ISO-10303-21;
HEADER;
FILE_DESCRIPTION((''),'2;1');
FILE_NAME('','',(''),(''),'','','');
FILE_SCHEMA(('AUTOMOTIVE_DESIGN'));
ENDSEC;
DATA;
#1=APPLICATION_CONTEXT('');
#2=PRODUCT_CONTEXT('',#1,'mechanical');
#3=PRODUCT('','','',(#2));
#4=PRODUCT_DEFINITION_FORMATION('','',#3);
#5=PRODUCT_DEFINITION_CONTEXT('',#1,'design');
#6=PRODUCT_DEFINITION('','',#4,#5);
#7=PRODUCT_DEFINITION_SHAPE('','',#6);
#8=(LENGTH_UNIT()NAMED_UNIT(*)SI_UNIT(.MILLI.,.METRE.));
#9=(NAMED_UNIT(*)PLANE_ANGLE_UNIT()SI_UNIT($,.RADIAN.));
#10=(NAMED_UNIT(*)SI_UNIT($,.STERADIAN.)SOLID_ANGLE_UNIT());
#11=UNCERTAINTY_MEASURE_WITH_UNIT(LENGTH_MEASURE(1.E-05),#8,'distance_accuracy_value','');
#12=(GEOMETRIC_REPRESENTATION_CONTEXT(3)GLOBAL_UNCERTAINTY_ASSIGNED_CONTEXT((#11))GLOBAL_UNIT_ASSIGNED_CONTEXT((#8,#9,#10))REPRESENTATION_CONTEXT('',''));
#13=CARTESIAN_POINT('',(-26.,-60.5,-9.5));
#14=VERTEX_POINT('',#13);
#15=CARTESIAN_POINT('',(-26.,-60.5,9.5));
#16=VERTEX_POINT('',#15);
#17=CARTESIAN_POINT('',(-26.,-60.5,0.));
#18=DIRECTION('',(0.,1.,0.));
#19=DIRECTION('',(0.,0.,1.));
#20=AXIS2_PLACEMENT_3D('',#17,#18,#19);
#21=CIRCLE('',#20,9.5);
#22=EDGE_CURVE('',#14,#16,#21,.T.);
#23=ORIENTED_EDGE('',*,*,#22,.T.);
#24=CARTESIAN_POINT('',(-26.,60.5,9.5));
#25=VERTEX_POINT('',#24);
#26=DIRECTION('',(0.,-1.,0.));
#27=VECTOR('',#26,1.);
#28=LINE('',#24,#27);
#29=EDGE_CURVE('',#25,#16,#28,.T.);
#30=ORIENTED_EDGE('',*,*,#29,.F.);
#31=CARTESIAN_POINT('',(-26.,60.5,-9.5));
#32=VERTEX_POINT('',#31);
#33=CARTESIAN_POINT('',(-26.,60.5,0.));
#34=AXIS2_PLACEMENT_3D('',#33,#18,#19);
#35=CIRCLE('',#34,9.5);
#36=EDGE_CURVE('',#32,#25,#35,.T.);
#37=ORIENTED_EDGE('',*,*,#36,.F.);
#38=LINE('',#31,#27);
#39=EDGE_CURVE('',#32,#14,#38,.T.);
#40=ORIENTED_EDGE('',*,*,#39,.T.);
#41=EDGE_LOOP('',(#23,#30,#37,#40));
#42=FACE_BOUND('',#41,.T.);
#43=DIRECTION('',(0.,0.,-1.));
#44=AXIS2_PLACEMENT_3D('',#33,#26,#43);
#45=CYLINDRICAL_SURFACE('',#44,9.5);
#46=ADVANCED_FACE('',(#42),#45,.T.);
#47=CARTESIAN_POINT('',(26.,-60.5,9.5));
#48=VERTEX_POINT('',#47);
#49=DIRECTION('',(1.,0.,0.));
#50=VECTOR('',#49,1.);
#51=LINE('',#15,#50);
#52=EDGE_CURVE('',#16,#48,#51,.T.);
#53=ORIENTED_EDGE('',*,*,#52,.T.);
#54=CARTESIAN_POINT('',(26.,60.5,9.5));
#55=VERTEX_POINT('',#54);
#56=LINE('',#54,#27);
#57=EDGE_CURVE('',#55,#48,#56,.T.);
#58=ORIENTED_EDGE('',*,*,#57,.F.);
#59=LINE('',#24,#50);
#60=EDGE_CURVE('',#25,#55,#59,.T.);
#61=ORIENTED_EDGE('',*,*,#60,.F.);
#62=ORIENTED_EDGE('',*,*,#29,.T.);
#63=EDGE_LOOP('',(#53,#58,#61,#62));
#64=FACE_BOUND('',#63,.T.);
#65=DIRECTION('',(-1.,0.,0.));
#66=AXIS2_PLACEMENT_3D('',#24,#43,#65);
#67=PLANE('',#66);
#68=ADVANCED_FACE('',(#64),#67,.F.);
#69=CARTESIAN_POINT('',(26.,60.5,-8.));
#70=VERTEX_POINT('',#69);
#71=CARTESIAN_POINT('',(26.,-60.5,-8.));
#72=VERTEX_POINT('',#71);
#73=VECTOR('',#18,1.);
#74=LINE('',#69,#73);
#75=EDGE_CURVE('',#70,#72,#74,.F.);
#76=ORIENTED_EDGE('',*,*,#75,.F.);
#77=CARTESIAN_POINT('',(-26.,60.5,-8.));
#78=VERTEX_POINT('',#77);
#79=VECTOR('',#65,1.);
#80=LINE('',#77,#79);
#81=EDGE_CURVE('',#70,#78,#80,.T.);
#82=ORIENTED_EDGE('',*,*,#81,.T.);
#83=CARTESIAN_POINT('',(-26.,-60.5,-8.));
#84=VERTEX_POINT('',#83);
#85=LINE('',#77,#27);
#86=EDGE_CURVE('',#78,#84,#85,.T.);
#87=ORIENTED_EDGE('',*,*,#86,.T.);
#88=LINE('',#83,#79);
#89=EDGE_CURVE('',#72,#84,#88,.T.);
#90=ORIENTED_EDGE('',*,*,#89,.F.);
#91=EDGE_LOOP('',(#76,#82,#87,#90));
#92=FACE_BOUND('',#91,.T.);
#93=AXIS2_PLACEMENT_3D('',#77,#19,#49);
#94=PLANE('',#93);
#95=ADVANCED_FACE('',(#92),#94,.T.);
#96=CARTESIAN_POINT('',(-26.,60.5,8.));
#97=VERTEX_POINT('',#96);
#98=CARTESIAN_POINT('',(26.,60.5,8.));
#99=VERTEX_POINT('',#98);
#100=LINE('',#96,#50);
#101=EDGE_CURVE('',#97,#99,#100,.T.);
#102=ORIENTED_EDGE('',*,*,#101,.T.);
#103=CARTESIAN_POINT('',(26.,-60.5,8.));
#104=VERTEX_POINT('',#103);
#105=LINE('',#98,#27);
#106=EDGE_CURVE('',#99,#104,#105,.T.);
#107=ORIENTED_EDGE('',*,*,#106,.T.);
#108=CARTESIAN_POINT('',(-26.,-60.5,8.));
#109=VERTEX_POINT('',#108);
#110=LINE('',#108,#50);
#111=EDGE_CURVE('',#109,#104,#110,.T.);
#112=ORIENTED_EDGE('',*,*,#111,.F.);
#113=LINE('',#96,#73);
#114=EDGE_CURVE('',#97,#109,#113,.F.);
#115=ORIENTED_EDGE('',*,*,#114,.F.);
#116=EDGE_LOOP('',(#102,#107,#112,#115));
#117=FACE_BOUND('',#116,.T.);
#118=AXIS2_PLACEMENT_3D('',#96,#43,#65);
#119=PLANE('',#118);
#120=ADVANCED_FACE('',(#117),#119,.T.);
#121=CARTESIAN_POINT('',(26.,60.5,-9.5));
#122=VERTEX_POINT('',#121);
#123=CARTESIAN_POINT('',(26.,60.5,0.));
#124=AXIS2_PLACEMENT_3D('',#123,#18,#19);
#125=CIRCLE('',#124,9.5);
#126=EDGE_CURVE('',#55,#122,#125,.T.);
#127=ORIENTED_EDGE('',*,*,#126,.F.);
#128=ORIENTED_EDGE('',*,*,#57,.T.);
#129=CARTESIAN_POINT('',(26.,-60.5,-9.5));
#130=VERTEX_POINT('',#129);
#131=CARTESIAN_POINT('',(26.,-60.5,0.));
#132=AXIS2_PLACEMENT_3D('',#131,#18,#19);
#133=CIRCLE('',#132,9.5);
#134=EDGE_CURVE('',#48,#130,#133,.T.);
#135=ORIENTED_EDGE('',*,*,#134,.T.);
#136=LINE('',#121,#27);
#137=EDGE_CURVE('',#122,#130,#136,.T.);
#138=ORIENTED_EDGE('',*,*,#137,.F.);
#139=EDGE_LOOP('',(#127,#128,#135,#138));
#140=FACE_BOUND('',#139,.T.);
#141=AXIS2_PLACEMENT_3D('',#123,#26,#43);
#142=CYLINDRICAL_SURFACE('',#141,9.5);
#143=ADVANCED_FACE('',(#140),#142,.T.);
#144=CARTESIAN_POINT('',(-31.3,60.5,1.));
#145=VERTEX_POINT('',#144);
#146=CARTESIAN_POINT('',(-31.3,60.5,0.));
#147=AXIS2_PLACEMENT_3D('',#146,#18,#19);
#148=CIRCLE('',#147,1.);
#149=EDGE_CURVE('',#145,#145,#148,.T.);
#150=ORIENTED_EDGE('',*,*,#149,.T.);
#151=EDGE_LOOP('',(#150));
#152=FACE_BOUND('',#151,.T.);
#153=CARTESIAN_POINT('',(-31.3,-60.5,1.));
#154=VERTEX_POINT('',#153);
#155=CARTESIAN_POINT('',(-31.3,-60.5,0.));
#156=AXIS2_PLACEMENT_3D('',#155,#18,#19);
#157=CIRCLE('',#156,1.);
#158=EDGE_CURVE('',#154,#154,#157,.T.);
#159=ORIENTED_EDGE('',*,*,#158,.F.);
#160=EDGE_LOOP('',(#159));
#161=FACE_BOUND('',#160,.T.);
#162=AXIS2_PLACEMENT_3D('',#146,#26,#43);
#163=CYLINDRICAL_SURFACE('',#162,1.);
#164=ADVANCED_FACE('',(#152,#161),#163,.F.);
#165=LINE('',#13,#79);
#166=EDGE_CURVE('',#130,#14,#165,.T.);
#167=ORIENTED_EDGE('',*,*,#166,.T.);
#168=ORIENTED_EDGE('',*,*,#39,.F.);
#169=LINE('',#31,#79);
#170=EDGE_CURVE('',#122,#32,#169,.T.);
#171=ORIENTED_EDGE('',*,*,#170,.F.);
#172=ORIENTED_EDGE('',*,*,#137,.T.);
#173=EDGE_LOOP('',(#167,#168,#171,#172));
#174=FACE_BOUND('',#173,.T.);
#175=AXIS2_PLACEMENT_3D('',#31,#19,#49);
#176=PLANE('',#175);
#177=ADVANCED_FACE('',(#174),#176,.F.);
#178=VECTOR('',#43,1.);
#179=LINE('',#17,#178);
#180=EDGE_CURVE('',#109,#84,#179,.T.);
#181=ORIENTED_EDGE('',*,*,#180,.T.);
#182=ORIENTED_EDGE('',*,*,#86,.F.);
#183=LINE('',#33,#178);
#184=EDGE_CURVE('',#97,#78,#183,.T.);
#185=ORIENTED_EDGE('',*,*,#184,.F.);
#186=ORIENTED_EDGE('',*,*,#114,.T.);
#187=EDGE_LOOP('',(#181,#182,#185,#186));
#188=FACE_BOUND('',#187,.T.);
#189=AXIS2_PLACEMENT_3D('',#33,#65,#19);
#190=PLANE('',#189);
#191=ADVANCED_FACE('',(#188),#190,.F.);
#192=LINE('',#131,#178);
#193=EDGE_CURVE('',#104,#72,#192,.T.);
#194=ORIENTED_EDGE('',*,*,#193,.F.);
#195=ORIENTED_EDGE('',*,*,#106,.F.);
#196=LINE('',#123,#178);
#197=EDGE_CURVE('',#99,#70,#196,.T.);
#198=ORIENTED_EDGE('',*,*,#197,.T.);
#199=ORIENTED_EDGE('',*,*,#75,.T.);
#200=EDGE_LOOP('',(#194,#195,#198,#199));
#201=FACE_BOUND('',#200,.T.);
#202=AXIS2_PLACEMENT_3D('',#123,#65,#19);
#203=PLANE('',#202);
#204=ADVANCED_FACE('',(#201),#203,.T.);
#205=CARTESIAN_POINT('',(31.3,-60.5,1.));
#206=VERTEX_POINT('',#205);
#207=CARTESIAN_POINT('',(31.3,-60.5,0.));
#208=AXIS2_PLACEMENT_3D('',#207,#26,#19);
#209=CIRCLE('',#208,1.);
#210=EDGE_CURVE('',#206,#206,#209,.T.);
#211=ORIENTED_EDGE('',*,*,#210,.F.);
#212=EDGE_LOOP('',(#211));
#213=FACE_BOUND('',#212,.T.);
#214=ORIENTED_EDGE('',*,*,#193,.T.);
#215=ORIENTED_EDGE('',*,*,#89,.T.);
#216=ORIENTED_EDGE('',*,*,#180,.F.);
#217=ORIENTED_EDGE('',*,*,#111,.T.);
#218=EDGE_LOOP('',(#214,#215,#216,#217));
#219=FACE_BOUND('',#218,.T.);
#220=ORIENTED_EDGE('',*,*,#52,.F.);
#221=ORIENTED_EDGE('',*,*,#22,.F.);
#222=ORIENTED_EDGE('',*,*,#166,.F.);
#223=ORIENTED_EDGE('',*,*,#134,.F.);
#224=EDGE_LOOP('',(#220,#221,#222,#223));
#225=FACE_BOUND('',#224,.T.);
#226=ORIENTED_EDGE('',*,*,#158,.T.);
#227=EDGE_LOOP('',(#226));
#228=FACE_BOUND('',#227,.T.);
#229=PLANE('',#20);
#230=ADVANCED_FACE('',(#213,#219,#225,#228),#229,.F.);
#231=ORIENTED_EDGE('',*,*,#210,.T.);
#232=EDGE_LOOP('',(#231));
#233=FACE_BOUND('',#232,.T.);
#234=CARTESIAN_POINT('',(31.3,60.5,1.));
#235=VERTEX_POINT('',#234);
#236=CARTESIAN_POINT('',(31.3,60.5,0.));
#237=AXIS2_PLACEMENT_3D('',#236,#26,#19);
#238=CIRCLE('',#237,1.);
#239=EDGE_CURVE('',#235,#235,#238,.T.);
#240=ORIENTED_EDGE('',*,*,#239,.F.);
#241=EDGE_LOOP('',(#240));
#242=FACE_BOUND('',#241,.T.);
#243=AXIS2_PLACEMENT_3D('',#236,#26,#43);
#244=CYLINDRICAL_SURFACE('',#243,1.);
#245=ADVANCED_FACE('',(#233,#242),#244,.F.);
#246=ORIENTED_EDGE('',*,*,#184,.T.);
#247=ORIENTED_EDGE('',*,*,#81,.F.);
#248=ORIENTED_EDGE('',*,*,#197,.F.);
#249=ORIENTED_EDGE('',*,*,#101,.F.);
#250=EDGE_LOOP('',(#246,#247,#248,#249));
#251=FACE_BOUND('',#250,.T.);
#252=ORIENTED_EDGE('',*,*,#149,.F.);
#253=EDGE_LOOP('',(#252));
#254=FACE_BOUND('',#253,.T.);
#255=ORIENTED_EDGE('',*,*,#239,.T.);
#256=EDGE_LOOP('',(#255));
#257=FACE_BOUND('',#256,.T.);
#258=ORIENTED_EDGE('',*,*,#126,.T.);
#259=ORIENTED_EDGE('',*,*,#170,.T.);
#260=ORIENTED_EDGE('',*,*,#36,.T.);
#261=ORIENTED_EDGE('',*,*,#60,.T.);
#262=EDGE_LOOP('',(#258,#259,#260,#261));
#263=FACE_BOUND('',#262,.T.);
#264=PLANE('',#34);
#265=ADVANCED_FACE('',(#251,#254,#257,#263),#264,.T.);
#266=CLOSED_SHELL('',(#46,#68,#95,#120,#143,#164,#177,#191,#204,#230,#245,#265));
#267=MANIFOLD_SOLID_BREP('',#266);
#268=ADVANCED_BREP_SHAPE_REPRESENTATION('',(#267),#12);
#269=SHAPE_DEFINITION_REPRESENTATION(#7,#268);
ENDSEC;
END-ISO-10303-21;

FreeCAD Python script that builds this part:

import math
import FreeCAD as App
import Part
import Sketcher
Q = App.Units.Quantity


def faces_at(feature, points):
    """Names of the faces that lie closest to the given points."""
    faces = feature.Shape.Faces
    near = lambda p: min(range(len(faces)), key=lambda i: faces[i].distToShape(Part.Vertex(*p))[0])
    return sorted({f"Face{near(p) + 1}" for p in points})

doc = App.newDocument("Part")
body = doc.addObject("PartDesign::Body", "Body")

sketch1 = body.newObject("Sketcher::SketchObject", "Sketch")
sketch1.AttachmentSupport = (doc.getObject("XZ_Plane"), [""])
sketch1.MapMode = "FlatFace"
sketch1.addGeometry(Part.LineSegment(App.Vector(26, -10, 0), App.Vector(-26, -10, 0)), False)
sketch1.addGeometry(Part.ArcOfCircle(Part.Circle(App.Vector(-26, 0, 0), App.Vector(0, 0, 1), 10), math.radians(90), math.radians(270)), False)
sketch1.addGeometry(Part.LineSegment(App.Vector(-26, 10, 0), App.Vector(26, 10, 0)), False)
sketch1.addGeometry(Part.ArcOfCircle(Part.Circle(App.Vector(26, 0, 0), App.Vector(0, 0, 1), 10), math.radians(-90), math.radians(90)), False)
sketch1.addConstraint(Sketcher.Constraint("Tangent", 0, 2, 1, 2))
sketch1.addConstraint(Sketcher.Constraint("Tangent", 1, 1, 2, 1))
sketch1.addConstraint(Sketcher.Constraint("Tangent", 2, 2, 3, 2))
sketch1.addConstraint(Sketcher.Constraint("Tangent", 3, 1, 0, 1))
sketch1.addConstraint(Sketcher.Constraint("Horizontal", 0))
sketch1.addConstraint(Sketcher.Constraint("Horizontal", 2))
sketch1.addConstraint(Sketcher.Constraint("Symmetric", 1, 3, 3, 3, -1, 1))
sketch1.addConstraint(Sketcher.Constraint("Radius", 1, Q("9.5 mm")))
sketch1.addConstraint(Sketcher.Constraint("DistanceX", 0, 2, 0, 1, Q("52 mm")))
pad1 = body.newObject("PartDesign::Pad", "Pad")
pad1.Profile = sketch1
pad1.Length = 121
pad1.Midplane = True
doc.recompute()

thickness = body.newObject("PartDesign::Thickness", "Thickness")
thickness.Base = (pad1, faces_at(pad1, [(0, 60.5, 0), (0, -60.5, 0)]))
thickness.Value = 1.5
thickness.Reversed = True
thickness.Join = "Intersection"

sketch2 = body.newObject("Sketcher::SketchObject", "Sketch001")
sketch2.AttachmentSupport = (doc.getObject("XZ_Plane"), [""])
sketch2.MapMode = "FlatFace"
sketch2.addGeometry(Part.ArcOfCircle(Part.Circle(App.Vector(-26, 0, 0), App.Vector(0, 0, 1), 8), math.radians(-180), math.radians(-90)), False)
sketch2.addGeometry(Part.ArcOfCircle(Part.Circle(App.Vector(-26, 0, 0), App.Vector(0, 0, 1), 8), math.radians(90), math.radians(180)), False)
sketch2.addGeometry(Part.LineSegment(App.Vector(-26, 8, 0), App.Vector(-26, -8, 0)), False)
sketch2.addGeometry(Part.Circle(App.Vector(-31.3, 0, 0), App.Vector(0, 0, 1), 1), False)
sketch2.addConstraint(Sketcher.Constraint("Tangent", 0, 1, 1, 2))
sketch2.addConstraint(Sketcher.Constraint("Coincident", 1, 1, 2, 1))
sketch2.addConstraint(Sketcher.Constraint("Coincident", 2, 2, 0, 2))
sketch2.addConstraint(Sketcher.Constraint("Vertical", 2))
sketch2.addConstraint(Sketcher.Constraint("Equal", 0, 1))
sketch2.addConstraint(Sketcher.Constraint("PointOnObject", 0, 3, -1))
sketch2.addConstraint(Sketcher.Constraint("PointOnObject", 3, 3, -1))
sketch2.addConstraint(Sketcher.Constraint("PointOnObject", 0, 1, -1))
sketch2.addConstraint(Sketcher.Constraint("Vertical", 0, 3, 1, 1))
sketch2.addConstraint(Sketcher.Constraint("Diameter", 3, Q("2 mm")))
sketch2.addConstraint(Sketcher.Constraint("Radius", 0, Q("8 mm")))
sketch2.addConstraint(Sketcher.Constraint("DistanceX", 0, 3, -1, 1, Q("26 mm")))
sketch2.addConstraint(Sketcher.Constraint("DistanceX", 3, 3, -1, 1, Q("31.3 mm")))
pad2 = body.newObject("PartDesign::Pad", "Pad001")
pad2.Profile = sketch2
pad2.Length = 121
pad2.Midplane = True
doc.recompute()

mirrored = body.newObject("PartDesign::Mirrored", "Mirrored")
mirrored.Originals = [pad2]
mirrored.MirrorPlane = (doc.getObject("YZ_Plane"), [""])
body.Tip = mirrored

doc.recompute()
